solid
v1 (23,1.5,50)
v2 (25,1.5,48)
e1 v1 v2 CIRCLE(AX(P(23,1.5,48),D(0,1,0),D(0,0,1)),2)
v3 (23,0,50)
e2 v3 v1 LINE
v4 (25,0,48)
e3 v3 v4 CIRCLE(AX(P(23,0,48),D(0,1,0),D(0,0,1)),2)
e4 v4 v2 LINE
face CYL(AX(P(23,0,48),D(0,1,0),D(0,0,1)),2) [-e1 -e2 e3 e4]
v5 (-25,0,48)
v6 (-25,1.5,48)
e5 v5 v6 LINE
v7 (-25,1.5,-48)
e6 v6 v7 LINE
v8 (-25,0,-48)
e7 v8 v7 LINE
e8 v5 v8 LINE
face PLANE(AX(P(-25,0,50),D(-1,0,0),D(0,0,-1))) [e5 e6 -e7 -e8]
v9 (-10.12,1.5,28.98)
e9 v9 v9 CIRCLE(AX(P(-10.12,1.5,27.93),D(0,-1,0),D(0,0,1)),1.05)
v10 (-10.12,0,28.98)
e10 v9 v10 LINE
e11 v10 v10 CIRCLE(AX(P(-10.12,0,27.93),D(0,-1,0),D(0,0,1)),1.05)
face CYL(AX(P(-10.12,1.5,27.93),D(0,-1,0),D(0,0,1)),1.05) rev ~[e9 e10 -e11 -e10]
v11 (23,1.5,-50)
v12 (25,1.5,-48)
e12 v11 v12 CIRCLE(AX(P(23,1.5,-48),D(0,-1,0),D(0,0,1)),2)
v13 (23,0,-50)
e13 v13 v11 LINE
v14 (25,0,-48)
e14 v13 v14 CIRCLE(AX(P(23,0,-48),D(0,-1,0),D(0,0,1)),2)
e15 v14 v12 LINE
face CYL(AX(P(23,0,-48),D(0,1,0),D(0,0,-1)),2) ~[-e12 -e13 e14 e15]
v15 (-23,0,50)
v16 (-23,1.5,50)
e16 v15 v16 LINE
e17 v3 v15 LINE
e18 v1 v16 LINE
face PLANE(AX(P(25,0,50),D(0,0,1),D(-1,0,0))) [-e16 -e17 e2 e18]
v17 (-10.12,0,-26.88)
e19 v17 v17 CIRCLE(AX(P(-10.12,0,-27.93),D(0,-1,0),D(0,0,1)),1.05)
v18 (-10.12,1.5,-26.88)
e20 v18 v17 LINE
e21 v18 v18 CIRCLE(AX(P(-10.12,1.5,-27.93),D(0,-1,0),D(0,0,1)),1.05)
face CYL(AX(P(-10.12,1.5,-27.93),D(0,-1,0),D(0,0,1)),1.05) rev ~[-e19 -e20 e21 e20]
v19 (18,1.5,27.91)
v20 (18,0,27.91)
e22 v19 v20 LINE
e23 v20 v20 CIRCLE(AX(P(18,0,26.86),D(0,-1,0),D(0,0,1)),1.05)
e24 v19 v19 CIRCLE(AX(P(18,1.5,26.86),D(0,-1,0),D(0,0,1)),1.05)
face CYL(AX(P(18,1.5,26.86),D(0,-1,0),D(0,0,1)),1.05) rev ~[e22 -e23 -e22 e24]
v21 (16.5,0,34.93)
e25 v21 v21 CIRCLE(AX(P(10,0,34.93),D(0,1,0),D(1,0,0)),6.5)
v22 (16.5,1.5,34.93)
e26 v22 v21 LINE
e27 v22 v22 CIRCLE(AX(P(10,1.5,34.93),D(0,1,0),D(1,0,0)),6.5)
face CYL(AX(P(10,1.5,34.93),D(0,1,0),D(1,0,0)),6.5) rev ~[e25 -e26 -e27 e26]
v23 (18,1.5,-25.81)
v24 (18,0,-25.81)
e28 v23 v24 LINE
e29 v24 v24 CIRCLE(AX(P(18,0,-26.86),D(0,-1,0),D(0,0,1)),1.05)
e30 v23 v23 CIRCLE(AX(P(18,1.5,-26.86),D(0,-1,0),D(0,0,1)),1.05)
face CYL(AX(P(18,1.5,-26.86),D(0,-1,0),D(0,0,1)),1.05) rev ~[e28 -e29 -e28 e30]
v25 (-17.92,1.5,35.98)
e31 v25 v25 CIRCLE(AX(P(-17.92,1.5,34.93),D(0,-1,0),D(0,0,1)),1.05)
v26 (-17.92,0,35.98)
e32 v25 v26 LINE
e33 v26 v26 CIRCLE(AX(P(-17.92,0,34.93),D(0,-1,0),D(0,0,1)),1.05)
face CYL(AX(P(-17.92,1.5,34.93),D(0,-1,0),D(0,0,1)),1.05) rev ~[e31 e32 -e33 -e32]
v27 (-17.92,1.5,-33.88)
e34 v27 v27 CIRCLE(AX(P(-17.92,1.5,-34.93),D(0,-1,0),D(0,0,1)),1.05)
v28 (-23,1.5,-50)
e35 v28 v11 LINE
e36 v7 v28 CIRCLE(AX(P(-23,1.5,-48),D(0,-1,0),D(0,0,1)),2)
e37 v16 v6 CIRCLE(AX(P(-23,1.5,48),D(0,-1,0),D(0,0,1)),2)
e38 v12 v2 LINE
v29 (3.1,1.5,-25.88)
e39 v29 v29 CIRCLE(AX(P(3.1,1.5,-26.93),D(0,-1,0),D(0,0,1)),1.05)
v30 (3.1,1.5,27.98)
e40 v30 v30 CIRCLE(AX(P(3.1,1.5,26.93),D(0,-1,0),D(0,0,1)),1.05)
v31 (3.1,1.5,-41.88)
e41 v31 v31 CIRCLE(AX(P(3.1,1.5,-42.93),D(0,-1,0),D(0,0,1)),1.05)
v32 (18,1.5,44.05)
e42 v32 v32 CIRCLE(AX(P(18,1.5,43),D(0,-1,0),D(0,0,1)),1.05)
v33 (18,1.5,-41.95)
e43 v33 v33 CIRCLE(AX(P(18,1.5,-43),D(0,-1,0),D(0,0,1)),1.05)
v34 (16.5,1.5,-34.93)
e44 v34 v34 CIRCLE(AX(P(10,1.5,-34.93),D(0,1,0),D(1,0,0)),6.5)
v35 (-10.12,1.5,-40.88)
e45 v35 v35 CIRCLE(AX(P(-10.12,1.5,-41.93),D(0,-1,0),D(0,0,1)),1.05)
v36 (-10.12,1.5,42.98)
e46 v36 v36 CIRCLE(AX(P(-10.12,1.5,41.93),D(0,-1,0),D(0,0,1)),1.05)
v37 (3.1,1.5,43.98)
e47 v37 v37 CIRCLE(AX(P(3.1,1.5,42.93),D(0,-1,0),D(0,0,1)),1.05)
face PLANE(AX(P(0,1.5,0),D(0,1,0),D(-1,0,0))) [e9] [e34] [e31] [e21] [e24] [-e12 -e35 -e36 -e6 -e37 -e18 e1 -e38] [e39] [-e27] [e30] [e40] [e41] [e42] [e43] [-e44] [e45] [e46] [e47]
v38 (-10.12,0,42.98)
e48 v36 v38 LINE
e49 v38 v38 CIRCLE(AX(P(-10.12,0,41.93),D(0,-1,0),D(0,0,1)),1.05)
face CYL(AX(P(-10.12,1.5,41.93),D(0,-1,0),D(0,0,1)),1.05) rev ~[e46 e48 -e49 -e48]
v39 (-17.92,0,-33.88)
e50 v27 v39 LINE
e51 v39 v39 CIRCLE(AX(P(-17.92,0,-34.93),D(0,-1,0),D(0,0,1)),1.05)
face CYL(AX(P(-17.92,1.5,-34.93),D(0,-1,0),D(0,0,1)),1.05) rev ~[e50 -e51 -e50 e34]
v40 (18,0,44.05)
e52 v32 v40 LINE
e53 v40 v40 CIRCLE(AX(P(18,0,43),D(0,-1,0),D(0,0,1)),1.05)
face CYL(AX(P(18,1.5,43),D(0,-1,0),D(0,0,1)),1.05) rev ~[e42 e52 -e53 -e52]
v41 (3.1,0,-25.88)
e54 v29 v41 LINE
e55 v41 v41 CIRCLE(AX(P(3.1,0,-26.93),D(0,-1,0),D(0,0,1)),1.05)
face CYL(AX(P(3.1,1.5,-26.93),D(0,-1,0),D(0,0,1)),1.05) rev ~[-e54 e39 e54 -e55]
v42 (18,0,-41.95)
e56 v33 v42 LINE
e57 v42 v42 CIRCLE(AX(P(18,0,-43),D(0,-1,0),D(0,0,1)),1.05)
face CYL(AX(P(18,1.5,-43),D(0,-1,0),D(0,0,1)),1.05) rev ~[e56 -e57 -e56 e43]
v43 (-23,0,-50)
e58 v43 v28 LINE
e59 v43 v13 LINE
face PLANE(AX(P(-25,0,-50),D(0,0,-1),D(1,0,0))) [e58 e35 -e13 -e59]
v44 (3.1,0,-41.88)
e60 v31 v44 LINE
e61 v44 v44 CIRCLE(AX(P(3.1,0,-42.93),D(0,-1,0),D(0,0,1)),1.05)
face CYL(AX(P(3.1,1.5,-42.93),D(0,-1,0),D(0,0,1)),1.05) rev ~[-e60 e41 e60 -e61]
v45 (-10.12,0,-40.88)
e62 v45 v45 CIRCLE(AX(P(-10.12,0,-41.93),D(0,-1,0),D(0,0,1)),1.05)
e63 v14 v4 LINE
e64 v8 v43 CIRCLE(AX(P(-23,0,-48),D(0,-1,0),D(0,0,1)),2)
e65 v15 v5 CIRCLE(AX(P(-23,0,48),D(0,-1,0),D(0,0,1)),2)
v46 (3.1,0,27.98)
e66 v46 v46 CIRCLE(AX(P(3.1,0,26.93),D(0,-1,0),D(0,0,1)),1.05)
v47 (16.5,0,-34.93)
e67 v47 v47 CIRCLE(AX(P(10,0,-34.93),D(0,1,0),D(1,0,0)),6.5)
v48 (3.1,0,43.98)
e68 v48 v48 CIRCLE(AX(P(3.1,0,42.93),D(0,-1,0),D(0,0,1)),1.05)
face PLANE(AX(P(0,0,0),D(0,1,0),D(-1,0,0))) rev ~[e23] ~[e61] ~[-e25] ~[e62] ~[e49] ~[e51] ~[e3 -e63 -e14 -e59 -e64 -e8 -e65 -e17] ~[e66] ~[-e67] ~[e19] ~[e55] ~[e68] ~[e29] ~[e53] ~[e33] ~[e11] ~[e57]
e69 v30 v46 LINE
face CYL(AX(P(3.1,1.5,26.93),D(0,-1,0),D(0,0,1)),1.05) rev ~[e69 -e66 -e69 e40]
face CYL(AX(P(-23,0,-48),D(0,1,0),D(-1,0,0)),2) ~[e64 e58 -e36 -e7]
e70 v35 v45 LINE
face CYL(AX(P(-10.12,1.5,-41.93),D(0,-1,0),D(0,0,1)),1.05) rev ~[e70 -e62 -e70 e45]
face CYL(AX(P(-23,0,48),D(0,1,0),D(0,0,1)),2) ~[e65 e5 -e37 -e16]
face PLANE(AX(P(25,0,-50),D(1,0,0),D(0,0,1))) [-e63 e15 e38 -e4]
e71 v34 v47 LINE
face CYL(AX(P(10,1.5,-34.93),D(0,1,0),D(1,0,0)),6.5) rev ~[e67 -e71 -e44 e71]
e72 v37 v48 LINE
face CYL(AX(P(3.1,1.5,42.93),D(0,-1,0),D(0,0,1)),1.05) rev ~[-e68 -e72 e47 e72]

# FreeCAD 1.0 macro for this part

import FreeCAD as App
import Part
import Sketcher
Q = App.Units.Quantity


def edges_at(feature, points):
    """Names of the edges that pass closest to the given points."""
    edges = feature.Shape.Edges
    near = lambda p: min(range(len(edges)), key=lambda i: edges[i].distToShape(Part.Vertex(*p))[0])
    return sorted({f"Edge{near(p) + 1}" for p in points})

doc = App.newDocument("Part")
body = doc.addObject("PartDesign::Body", "Body")

sketch1 = body.newObject("Sketcher::SketchObject", "Sketch")
sketch1.AttachmentSupport = (doc.getObject("XZ_Plane"), [""])
sketch1.MapMode = "FlatFace"
sketch1.addGeometry([
    Part.LineSegment(App.Vector(-25, 50, 0), App.Vector(25, 50, 0)),
    Part.LineSegment(App.Vector(25, 50, 0), App.Vector(25, -50, 0)),
    Part.LineSegment(App.Vector(25, -50, 0), App.Vector(-25, -50, 0)),
    Part.LineSegment(App.Vector(-25, -50, 0), App.Vector(-25, 50, 0)),
], False)
sketch1.addConstraint([
    Sketcher.Constraint("Coincident", 0, 2, 1, 1),
    Sketcher.Constraint("Coincident", 1, 2, 2, 1),
    Sketcher.Constraint("Coincident", 2, 2, 3, 1),
    Sketcher.Constraint("Coincident", 3, 2, 0, 1),
    Sketcher.Constraint("Horizontal", 0),
    Sketcher.Constraint("Vertical", 1),
    Sketcher.Constraint("Horizontal", 2),
    Sketcher.Constraint("Vertical", 3),
    Sketcher.Constraint("Symmetric", 0, 2, 2, 2, -1, 1),
    Sketcher.Constraint("DistanceX", 0, 1, 0, 2, Q("50 mm")),
    Sketcher.Constraint("DistanceY", 1, 2, 1, 1, Q("100 mm")),
])
pad1 = body.newObject("PartDesign::Pad", "Pad")
pad1.Profile = sketch1
pad1.Length = 1.5
pad1.Reversed = True
doc.recompute()

fillet = body.newObject("PartDesign::Fillet", "Fillet")
fillet.Base = (pad1, edges_at(pad1, [
    (25, 0.75, 50),
    (25, 0.75, -50),
    (-25, 0.75, -50),
    (-25, 0.75, 50),
]))
fillet.Radius = 2

sketch2 = body.newObject("Sketcher::SketchObject", "Sketch001")
sketch2.AttachmentSupport = (doc.getObject("XZ_Plane"), [""])
sketch2.MapMode = "FlatFace"
sketch2.AttachmentOffset = App.Placement(App.Vector(0, 0, -1.5), App.Rotation())
sketch2.addGeometry([
    Part.Circle(App.Vector(-17.9, 34.9, 0), App.Vector(0, 0, 1), 1.1),
    Part.Circle(App.Vector(-10.1, 27.9, 0), App.Vector(0, 0, 1), 1.1),
    Part.Circle(App.Vector(-10.1, 41.9, 0), App.Vector(0, 0, 1), 1.1),
    Part.Circle(App.Vector(3.1, 42.9, 0), App.Vector(0, 0, 1), 1.1),
    Part.Circle(App.Vector(3.1, 26.9, 0), App.Vector(0, 0, 1), 1.1),
    Part.Circle(App.Vector(18, 26.9, 0), App.Vector(0, 0, 1), 1.1),
    Part.Circle(App.Vector(18, 43, 0), App.Vector(0, 0, 1), 1.1),
    Part.Circle(App.Vector(18, -26.9, 0), App.Vector(0, 0, 1), 1.1),
    Part.Circle(App.Vector(18, -43, 0), App.Vector(0, 0, 1), 1.1),
    Part.Circle(App.Vector(3.1, -42.9, 0), App.Vector(0, 0, 1), 1.1),
    Part.Circle(App.Vector(3.1, -26.9, 0), App.Vector(0, 0, 1), 1.1),
    Part.Circle(App.Vector(-10.1, -41.9, 0), App.Vector(0, 0, 1), 1.1),
    Part.Circle(App.Vector(-10.1, -27.9, 0), App.Vector(0, 0, 1), 1.1),
    Part.Circle(App.Vector(-17.9, -34.9, 0), App.Vector(0, 0, 1), 1.1),
], False)
sketch2.addConstraint([
    Sketcher.Constraint("Equal", 0, 1),
    Sketcher.Constraint("Equal", 1, 2),
    Sketcher.Constraint("Equal", 2, 3),
    Sketcher.Constraint("Equal", 3, 4),
    Sketcher.Constraint("Equal", 4, 5),
    Sketcher.Constraint("Equal", 5, 6),
    Sketcher.Constraint("Equal", 6, 7),
    Sketcher.Constraint("Equal", 7, 8),
    Sketcher.Constraint("Equal", 8, 9),
    Sketcher.Constraint("Equal", 9, 10),
    Sketcher.Constraint("Equal", 10, 11),
    Sketcher.Constraint("Equal", 11, 12),
    Sketcher.Constraint("Equal", 12, 13),
    Sketcher.Constraint("Symmetric", 5, 3, 7, 3, -1),
    Sketcher.Constraint("Symmetric", 6, 3, 8, 3, -1),
    Sketcher.Constraint("Symmetric", 3, 3, 9, 3, -1),
    Sketcher.Constraint("Symmetric", 4, 3, 10, 3, -1),
    Sketcher.Constraint("Symmetric", 2, 3, 11, 3, -1),
    Sketcher.Constraint("Symmetric", 1, 3, 12, 3, -1),
    Sketcher.Constraint("Symmetric", 0, 3, 13, 3, -1),
    Sketcher.Constraint("Vertical", 1, 3, 2, 3),
    Sketcher.Constraint("Vertical", 3, 3, 4, 3),
    Sketcher.Constraint("Vertical", 5, 3, 6, 3),
    Sketcher.Constraint("Diameter", 0, Q("2.1 mm")),
    Sketcher.Constraint("DistanceX", -1, 1, 5, 3, Q("18 mm")),
    Sketcher.Constraint("DistanceY", -1, 1, 6, 3, Q("43 mm")),
    Sketcher.Constraint("DistanceY", 1, 3, 0, 3, Q("7 mm")),
    Sketcher.Constraint("DistanceY", 0, 3, 2, 3, Q("7 mm")),
    Sketcher.Constraint("DistanceY", 2, 3, 3, 3, Q("1 mm")),
    Sketcher.Constraint("DistanceY", 4, 3, 1, 3, Q("1 mm")),
    Sketcher.Constraint("DistanceX", -1, 1, 3, 3, Q("3.1 mm")),
    Sketcher.Constraint("DistanceX", 0, 3, 1, 3, Q("7.8 mm")),
    Sketcher.Constraint("DistanceX", 0, 3, -1, 1, Q("17.92 mm")),
    Sketcher.Constraint("DistanceY", -1, 1, 0, 3, Q("34.93 mm")),
    Sketcher.Constraint("DistanceY", -1, 1, 5, 3, Q("26.86 mm")),
])
doc.recompute()
hole = body.newObject("PartDesign::Hole", "Hole")
hole.Profile = sketch2
hole.ThreadType = "None"
hole.Diameter = 2.1
hole.DepthType = "Dimension"
hole.Depth = 1.5
hole.DrillPoint = "Angled"
hole.DrillPointAngle = 118
hole.Reversed = True

sketch3 = body.newObject("Sketcher::SketchObject", "Sketch002")
sketch3.AttachmentSupport = (doc.getObject("XZ_Plane"), [""])
sketch3.MapMode = "FlatFace"
sketch3.AttachmentOffset = App.Placement(App.Vector(0, 0, -1.5), App.Rotation())
sketch3.addGeometry([
    Part.Circle(App.Vector(10, 35, 0), App.Vector(0, 0, 1), 6),
    Part.Circle(App.Vector(10, -35, 0), App.Vector(0, 0, 1), 6),
], False)
sketch3.addConstraint([
    Sketcher.Constraint("Equal", 0, 1),
    Sketcher.Constraint("Symmetric", 0, 3, 1, 3, -1),
    Sketcher.Constraint("Diameter", 0, Q("13 mm")),
    Sketcher.Constraint("DistanceX", -1, 1, 0, 3, Q("10 mm")),
    Sketcher.Constraint("DistanceY", -1, 1, 0, 3, Q("34.93 mm")),
])
pocket1 = body.newObject("PartDesign::Pocket", "Pocket")
pocket1.Profile = sketch3
pocket1.Length = 1.5
pocket1.Reversed = True

doc.recompute()
